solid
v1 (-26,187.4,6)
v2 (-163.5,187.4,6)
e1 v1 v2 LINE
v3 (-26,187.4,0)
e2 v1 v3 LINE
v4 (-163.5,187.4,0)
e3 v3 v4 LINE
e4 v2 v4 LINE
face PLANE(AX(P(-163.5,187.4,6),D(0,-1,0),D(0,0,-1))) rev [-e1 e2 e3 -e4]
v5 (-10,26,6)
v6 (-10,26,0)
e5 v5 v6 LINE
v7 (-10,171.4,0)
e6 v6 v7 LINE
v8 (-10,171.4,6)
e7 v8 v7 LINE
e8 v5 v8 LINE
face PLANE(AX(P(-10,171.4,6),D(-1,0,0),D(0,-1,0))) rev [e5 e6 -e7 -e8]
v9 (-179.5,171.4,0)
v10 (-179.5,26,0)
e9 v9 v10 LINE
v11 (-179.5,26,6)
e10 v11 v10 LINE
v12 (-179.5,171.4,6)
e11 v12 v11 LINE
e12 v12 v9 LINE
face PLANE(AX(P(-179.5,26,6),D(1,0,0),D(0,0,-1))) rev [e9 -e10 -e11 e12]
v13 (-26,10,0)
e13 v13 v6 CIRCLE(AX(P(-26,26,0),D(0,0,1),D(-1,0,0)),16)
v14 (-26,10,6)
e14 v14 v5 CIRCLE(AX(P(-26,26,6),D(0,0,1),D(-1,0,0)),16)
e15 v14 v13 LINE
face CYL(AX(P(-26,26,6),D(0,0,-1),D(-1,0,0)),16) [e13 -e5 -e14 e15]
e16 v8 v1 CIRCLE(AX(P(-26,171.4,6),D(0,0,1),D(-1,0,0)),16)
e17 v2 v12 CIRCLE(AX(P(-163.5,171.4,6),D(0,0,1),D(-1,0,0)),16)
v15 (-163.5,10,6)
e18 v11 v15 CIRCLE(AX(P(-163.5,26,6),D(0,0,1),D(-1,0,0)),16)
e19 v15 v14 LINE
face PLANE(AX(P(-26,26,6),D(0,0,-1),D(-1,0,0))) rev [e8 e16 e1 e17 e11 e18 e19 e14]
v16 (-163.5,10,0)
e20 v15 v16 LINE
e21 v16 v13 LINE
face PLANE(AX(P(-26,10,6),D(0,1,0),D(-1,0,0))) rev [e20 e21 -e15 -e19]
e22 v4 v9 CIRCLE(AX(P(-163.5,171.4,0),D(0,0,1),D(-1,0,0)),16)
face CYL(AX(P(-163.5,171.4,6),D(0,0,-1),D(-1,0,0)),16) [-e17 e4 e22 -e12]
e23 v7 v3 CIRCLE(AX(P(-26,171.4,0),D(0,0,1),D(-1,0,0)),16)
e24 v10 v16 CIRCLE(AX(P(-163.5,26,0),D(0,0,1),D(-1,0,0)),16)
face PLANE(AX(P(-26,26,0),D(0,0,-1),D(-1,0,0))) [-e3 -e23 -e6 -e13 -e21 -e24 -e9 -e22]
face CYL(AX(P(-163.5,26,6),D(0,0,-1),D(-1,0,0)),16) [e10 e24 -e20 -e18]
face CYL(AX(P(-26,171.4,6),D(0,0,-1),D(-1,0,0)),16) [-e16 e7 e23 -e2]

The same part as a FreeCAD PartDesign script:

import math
import FreeCAD as App
import Part
import Sketcher
from FreeCAD import Vector

doc = App.newDocument("Part")
params = doc.addObject("Spreadsheet::Sheet", "Params")
for row, (alias, value) in enumerate([
    ("sketch1_radius", "16 mm"),
    ("sketch1_width", "137.5 mm"),
    ("sketch1_height", "145.4 mm"),
    ("pad1_length", "6 mm"),
], start=1):
    params.set(f"A{row}", alias)
    params.set(f"B{row}", "=" + value)
    params.setAlias(f"B{row}", alias)

body = doc.addObject("PartDesign::Body", "Body")

# Sketch on XY plane
sketch1 = body.newObject("Sketcher::SketchObject", "Sketch")
sketch1.AttachmentSupport = (doc.getObject("XY_Plane"), [""])
sketch1.MapMode = "FlatFace"
sketch1.addGeometry([
    Part.LineSegment(Vector(-164, 10, 0), Vector(-26, 10, 0)),  # 0
    Part.ArcOfCircle(Part.Circle(Vector(-26, 26, 0), Vector(0, 0, 1), 16), math.radians(-90), math.radians(0)),  # 1
    Part.LineSegment(Vector(-10, 26, 0), Vector(-10, 171, 0)),  # 2
    Part.ArcOfCircle(Part.Circle(Vector(-26, 171, 0), Vector(0, 0, 1), 16), math.radians(0), math.radians(90)),  # 3
    Part.LineSegment(Vector(-26, 187, 0), Vector(-164, 187, 0)),  # 4
    Part.ArcOfCircle(Part.Circle(Vector(-164, 171, 0), Vector(0, 0, 1), 16), math.radians(90), math.radians(180)),  # 5
    Part.LineSegment(Vector(-180, 171, 0), Vector(-180, 26, 0)),  # 6
    Part.ArcOfCircle(Part.Circle(Vector(-164, 26, 0), Vector(0, 0, 1), 16), math.radians(180), math.radians(270)),  # 7
], False)
sketch1.addConstraint([
    Sketcher.Constraint("Tangent", 0, 2, 1, 1),
    Sketcher.Constraint("Tangent", 1, 2, 2, 1),
    Sketcher.Constraint("Tangent", 2, 2, 3, 1),
    Sketcher.Constraint("Tangent", 3, 2, 4, 1),
    Sketcher.Constraint("Tangent", 4, 2, 5, 1),
    Sketcher.Constraint("Tangent", 5, 2, 6, 1),
    Sketcher.Constraint("Tangent", 6, 2, 7, 1),
    Sketcher.Constraint("Tangent", 7, 2, 0, 1),
    Sketcher.Constraint("Horizontal", 0),
    Sketcher.Constraint("Vertical", 2),
    Sketcher.Constraint("Horizontal", 4),
    Sketcher.Constraint("Vertical", 6),
    Sketcher.Constraint("Equal", 1, 3),
    Sketcher.Constraint("Equal", 3, 5),
    Sketcher.Constraint("Equal", 5, 7),
    Sketcher.Constraint("Radius", 1, 16.0),
    Sketcher.Constraint("DistanceX", 0, 1, 0, 2, 137.5),
    Sketcher.Constraint("DistanceY", 2, 1, 2, 2, 145.4),
    Sketcher.Constraint("DistanceX", 1, 3, -1, 1, 26.0),
    Sketcher.Constraint("DistanceY", -1, 1, 1, 3, 26.0),
])
sketch1.setExpression("Constraints[15]", "Params.sketch1_radius")
sketch1.setExpression("Constraints[16]", "Params.sketch1_width")
sketch1.setExpression("Constraints[17]", "Params.sketch1_height")
pad1 = body.newObject("PartDesign::Pad", "Pad")
pad1.Profile = sketch1
pad1.setExpression("Length", "Params.pad1_length")

doc.recompute()
